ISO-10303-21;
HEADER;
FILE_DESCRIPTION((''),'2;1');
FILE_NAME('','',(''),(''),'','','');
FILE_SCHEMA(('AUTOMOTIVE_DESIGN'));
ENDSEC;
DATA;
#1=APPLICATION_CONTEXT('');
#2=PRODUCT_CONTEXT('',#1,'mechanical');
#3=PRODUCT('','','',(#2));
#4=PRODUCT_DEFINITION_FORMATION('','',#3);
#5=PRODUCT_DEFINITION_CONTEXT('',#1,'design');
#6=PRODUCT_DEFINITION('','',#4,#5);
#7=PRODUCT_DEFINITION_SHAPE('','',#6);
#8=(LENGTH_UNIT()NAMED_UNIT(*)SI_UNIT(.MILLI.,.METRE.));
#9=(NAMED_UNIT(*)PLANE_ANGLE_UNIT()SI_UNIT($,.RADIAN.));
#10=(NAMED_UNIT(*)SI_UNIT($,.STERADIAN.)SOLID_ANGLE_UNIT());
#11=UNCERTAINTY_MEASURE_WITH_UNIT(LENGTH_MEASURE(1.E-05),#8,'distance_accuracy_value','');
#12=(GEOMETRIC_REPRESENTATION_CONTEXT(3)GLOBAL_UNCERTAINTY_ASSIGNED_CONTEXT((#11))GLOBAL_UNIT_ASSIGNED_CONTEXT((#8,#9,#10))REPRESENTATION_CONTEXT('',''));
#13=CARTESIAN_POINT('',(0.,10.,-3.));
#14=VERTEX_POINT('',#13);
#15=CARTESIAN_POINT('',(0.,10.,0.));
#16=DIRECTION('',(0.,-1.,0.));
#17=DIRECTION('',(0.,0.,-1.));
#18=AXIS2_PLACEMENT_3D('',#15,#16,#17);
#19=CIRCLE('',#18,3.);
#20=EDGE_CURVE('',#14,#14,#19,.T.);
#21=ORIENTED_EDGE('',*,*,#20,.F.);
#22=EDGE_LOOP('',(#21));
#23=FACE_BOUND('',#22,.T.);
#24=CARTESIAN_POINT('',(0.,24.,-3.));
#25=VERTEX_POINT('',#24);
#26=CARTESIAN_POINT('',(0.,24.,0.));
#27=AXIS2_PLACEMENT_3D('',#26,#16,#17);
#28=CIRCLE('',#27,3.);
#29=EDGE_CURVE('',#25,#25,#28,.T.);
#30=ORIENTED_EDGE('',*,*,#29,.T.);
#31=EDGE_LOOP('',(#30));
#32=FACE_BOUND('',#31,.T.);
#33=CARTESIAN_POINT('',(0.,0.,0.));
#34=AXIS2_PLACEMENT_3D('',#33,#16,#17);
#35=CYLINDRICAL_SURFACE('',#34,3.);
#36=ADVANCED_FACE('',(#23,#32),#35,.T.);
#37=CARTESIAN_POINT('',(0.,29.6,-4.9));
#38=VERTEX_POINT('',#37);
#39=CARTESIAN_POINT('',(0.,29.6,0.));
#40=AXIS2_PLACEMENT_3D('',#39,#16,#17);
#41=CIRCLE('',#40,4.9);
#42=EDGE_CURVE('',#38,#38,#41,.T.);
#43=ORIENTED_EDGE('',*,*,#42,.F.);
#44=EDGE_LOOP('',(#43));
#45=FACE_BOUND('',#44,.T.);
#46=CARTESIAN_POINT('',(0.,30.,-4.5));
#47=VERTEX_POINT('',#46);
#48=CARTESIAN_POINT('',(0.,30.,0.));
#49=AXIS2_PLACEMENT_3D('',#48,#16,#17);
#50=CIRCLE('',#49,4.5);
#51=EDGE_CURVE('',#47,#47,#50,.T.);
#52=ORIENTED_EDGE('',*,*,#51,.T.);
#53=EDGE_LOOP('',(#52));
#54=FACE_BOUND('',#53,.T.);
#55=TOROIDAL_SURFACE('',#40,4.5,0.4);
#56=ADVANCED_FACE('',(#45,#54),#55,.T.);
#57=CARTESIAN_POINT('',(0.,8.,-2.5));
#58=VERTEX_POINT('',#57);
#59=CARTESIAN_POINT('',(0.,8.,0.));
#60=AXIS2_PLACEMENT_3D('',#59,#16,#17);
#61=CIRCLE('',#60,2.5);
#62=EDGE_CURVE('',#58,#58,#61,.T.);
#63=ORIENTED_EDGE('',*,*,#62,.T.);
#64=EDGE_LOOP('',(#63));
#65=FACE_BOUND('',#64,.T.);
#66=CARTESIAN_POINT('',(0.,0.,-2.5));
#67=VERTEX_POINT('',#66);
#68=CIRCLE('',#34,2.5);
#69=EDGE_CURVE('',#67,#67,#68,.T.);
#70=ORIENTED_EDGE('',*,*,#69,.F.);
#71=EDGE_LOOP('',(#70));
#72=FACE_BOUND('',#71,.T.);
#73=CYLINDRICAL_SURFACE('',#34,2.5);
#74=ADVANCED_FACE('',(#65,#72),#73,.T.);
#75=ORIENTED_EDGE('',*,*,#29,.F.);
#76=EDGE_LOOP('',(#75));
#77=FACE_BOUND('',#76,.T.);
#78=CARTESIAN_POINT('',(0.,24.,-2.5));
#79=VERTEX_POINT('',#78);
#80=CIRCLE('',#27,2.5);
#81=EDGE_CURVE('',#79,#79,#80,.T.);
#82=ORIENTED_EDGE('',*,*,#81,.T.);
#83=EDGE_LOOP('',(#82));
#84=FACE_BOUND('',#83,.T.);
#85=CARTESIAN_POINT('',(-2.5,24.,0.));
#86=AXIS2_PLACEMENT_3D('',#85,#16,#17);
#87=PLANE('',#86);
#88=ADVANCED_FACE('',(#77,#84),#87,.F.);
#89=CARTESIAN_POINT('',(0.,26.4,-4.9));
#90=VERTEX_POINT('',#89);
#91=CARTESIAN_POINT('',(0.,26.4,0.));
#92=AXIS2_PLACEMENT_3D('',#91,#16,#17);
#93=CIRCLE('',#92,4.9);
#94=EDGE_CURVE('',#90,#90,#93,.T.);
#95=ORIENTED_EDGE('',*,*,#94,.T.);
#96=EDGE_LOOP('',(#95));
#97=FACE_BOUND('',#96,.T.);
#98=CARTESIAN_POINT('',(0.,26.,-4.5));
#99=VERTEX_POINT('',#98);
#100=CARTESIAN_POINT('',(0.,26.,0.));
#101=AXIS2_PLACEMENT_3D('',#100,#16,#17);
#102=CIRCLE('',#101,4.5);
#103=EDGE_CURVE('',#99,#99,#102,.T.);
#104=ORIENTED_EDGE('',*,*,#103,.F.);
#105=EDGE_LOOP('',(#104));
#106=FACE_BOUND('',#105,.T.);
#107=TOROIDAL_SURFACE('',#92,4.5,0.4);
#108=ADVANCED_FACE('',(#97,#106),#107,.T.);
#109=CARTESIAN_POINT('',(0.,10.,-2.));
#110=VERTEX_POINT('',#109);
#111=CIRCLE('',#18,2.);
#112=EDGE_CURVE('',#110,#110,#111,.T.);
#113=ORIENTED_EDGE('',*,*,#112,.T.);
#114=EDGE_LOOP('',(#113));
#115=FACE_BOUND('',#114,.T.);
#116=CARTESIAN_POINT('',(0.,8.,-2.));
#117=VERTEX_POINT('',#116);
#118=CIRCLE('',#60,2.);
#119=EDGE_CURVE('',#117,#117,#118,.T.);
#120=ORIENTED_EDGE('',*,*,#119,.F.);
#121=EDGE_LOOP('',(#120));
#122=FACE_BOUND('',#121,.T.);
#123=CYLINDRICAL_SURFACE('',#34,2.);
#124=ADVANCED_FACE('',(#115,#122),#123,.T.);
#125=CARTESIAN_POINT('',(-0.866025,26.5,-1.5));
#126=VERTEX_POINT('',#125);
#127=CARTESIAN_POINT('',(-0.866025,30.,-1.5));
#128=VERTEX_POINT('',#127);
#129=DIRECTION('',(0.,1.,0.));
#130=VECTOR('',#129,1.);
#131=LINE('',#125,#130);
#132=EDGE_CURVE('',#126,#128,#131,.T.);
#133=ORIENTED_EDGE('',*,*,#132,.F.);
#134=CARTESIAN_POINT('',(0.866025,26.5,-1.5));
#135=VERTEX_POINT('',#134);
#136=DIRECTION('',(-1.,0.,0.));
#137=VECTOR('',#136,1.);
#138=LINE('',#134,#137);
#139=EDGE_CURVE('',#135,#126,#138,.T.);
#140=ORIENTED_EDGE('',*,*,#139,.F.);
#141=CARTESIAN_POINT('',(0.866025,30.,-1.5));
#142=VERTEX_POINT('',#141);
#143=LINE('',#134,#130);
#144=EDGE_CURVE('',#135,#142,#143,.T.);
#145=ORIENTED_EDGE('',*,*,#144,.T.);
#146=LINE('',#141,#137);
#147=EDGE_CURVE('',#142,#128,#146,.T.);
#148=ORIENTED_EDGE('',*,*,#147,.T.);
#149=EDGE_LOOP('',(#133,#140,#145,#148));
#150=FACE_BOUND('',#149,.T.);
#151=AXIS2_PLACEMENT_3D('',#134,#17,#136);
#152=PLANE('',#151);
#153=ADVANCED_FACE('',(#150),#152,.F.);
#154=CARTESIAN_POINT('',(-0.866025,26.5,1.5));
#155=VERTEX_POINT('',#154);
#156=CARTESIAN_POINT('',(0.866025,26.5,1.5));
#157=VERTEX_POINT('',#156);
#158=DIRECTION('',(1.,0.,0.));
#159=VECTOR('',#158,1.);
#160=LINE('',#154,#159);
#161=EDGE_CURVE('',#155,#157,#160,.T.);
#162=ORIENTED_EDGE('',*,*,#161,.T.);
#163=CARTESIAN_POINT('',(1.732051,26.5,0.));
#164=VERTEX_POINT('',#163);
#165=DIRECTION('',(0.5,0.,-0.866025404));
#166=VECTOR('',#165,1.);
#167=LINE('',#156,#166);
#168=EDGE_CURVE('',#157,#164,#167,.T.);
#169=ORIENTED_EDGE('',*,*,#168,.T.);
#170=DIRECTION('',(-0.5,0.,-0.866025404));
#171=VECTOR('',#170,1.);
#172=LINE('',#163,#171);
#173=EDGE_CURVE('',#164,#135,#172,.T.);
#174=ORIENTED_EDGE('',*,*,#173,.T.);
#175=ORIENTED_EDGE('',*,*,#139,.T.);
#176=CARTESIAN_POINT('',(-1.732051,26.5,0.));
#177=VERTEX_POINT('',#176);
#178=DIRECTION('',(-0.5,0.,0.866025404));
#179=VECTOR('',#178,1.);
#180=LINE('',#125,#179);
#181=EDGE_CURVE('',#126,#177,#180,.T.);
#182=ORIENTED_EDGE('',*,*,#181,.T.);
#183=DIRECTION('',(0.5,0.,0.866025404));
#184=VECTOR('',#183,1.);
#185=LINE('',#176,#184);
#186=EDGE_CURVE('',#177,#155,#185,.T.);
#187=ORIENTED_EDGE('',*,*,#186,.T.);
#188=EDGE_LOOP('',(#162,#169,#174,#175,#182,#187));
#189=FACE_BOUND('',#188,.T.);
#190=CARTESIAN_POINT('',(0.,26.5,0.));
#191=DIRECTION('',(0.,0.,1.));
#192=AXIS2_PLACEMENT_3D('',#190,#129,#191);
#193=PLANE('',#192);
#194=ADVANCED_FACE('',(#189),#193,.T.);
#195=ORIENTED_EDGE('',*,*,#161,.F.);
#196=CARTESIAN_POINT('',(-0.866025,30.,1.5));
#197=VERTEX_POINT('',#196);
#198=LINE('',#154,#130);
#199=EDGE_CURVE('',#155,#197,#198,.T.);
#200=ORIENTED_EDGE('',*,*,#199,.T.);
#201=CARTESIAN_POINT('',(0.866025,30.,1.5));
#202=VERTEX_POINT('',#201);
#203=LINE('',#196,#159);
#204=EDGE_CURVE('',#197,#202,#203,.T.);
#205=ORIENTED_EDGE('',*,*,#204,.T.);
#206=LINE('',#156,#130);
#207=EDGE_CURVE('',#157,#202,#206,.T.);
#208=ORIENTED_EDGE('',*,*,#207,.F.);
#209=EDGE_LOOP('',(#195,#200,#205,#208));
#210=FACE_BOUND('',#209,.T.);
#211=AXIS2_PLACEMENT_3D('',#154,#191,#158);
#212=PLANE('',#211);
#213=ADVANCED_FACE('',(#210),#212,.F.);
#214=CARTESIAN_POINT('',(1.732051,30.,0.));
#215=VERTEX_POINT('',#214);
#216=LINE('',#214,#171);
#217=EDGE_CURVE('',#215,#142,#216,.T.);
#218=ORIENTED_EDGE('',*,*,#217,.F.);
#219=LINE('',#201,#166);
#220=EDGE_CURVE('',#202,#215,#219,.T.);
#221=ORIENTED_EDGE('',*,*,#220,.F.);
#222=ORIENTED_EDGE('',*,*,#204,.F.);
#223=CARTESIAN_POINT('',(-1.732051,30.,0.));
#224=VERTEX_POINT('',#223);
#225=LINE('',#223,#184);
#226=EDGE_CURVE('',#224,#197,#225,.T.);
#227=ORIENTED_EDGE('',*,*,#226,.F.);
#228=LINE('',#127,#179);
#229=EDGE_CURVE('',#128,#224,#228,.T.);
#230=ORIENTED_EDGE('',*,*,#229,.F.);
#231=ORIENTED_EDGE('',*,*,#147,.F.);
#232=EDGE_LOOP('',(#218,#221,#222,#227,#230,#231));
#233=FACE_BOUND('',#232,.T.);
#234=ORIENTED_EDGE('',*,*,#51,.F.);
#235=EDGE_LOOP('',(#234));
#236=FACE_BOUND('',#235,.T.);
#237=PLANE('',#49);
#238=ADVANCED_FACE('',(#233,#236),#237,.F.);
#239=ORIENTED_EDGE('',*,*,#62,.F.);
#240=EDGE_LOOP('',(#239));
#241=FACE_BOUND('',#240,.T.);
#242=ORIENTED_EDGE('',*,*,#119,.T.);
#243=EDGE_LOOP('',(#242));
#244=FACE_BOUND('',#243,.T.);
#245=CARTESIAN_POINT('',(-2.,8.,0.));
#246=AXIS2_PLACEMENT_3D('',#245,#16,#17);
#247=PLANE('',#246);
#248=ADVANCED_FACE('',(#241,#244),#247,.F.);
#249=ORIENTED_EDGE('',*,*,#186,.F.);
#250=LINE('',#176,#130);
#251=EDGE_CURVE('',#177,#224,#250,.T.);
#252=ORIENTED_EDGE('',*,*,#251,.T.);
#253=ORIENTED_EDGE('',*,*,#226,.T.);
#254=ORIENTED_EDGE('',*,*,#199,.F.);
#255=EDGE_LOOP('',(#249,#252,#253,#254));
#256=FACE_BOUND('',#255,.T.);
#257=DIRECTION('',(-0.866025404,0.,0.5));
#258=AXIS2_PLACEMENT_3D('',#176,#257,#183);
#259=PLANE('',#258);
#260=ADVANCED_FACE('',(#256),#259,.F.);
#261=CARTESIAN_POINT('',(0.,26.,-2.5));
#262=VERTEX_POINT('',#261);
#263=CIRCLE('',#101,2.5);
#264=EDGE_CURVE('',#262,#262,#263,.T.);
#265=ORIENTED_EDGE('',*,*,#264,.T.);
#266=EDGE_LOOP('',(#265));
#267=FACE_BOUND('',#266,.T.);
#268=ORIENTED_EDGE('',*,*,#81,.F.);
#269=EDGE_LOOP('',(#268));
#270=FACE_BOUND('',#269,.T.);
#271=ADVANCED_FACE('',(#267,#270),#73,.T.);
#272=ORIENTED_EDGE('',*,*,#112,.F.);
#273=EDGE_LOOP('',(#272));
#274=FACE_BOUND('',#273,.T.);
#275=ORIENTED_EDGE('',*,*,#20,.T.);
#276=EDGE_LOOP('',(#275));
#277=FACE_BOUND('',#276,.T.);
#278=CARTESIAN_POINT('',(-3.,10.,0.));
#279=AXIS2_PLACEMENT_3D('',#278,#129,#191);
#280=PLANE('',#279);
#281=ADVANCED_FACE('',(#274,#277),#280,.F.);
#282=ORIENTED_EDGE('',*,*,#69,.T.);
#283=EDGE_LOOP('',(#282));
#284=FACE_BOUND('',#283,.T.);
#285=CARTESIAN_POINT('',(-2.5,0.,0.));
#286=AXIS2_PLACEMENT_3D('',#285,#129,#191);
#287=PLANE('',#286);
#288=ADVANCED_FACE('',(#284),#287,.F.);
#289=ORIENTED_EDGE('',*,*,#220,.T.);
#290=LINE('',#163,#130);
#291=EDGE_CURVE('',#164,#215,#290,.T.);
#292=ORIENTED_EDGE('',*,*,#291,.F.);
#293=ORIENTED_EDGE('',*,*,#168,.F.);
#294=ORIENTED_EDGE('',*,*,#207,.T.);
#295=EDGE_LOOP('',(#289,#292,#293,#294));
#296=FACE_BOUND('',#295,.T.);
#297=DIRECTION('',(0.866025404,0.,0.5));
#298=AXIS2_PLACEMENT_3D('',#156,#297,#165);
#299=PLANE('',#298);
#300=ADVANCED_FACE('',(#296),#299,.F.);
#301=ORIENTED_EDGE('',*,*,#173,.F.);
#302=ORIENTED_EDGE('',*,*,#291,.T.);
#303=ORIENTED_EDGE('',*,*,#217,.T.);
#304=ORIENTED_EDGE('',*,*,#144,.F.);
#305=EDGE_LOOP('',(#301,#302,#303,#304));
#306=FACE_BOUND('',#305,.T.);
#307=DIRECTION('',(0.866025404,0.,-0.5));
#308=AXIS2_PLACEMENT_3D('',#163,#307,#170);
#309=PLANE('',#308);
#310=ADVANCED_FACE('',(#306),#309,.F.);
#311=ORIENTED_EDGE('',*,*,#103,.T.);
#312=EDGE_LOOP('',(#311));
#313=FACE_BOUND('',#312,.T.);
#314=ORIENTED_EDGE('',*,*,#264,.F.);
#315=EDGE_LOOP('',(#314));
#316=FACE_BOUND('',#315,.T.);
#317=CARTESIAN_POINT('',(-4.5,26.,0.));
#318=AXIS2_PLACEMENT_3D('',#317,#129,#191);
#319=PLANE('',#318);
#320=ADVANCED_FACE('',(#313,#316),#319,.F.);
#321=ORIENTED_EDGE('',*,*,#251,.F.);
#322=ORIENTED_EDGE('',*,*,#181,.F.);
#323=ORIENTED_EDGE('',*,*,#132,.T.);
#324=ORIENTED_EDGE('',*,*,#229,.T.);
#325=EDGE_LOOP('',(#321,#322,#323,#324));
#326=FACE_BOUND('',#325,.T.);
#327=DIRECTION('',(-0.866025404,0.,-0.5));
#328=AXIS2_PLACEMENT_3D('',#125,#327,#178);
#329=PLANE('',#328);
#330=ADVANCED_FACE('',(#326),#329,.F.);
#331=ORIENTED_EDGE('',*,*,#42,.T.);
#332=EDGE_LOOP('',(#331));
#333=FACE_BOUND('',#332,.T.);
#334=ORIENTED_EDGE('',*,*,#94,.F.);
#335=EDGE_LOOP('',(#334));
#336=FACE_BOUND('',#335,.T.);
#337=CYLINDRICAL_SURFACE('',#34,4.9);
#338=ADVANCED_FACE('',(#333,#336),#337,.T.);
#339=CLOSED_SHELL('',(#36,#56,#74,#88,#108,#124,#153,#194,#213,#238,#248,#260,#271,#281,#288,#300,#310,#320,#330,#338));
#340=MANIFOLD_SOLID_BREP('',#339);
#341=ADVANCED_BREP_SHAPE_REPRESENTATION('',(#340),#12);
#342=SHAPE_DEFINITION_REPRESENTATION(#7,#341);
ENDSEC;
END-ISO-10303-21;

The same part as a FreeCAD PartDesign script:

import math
import FreeCAD as App
import Part
import Sketcher
Q = App.Units.Quantity

doc = App.newDocument("Part")
params = doc.addObject("Spreadsheet::Sheet", "Params")
for row, (alias, value) in enumerate([
    ("sketch1_radius", "0.4 mm"),
    ("sketch1_width", "2 mm"),
    ("sketch1_width2", "1 mm"),
    ("sketch1_height", "14 mm"),
    ("sketch1_height2", "8 mm"),
    ("revolution_angle", "360 deg"),
    ("pocket1_length", "3.5 mm"),
], start=1):
    params.set(f"A{row}", alias)
    params.set(f"B{row}", "=" + value)
    params.setAlias(f"B{row}", alias)

body = doc.addObject("PartDesign::Body", "Body")

# Sketch on XY plane
sketch1 = body.newObject("Sketcher::SketchObject", "Sketch")
sketch1.AttachmentSupport = (doc.getObject("XY_Plane"), [""])
sketch1.MapMode = "FlatFace"
sketch1.addGeometry(Part.LineSegment(App.Vector(0, 30, 0), App.Vector(-4.5, 30, 0)), False)
sketch1.addGeometry(Part.ArcOfCircle(Part.Circle(App.Vector(-4.5, 29.6, 0), App.Vector(0, 0, 1), 0.4), math.radians(90), math.radians(180)), False)
sketch1.addGeometry(Part.LineSegment(App.Vector(-4.9, 29.6, 0), App.Vector(-4.9, 26.4, 0)), False)
sketch1.addGeometry(Part.ArcOfCircle(Part.Circle(App.Vector(-4.5, 26.4, 0), App.Vector(0, 0, 1), 0.4), math.radians(-180), math.radians(-90)), False)
sketch1.addGeometry(Part.LineSegment(App.Vector(-4.5, 26, 0), App.Vector(-2.5, 26, 0)), False)
sketch1.addGeometry(Part.LineSegment(App.Vector(-2.5, 26, 0), App.Vector(-2.5, 24, 0)), False)
sketch1.addGeometry(Part.LineSegment(App.Vector(-2.5, 24, 0), App.Vector(-3, 24, 0)), False)
sketch1.addGeometry(Part.LineSegment(App.Vector(-3, 24, 0), App.Vector(-3, 10, 0)), False)
sketch1.addGeometry(Part.LineSegment(App.Vector(-3, 10, 0), App.Vector(-2, 10, 0)), False)
sketch1.addGeometry(Part.LineSegment(App.Vector(-2, 10, 0), App.Vector(-2, 8, 0)), False)
sketch1.addGeometry(Part.LineSegment(App.Vector(-2, 8, 0), App.Vector(-2.5, 8, 0)), False)
sketch1.addGeometry(Part.LineSegment(App.Vector(-2.5, 8, 0), App.Vector(-2.5, 0, 0)), False)
sketch1.addGeometry(Part.LineSegment(App.Vector(-2.5, 0, 0), App.Vector(0, 0, 0)), False)
sketch1.addGeometry(Part.LineSegment(App.Vector(0, 0, 0), App.Vector(0, 30, 0)), False)
sketch1.addConstraint(Sketcher.Constraint("Tangent", 0, 2, 1, 1))
sketch1.addConstraint(Sketcher.Constraint("Tangent", 1, 2, 2, 1))
sketch1.addConstraint(Sketcher.Constraint("Tangent", 2, 2, 3, 1))
sketch1.addConstraint(Sketcher.Constraint("Tangent", 3, 2, 4, 1))
sketch1.addConstraint(Sketcher.Constraint("Coincident", 4, 2, 5, 1))
sketch1.addConstraint(Sketcher.Constraint("Coincident", 5, 2, 6, 1))
sketch1.addConstraint(Sketcher.Constraint("Coincident", 6, 2, 7, 1))
sketch1.addConstraint(Sketcher.Constraint("Coincident", 7, 2, 8, 1))
sketch1.addConstraint(Sketcher.Constraint("Coincident", 8, 2, 9, 1))
sketch1.addConstraint(Sketcher.Constraint("Coincident", 9, 2, 10, 1))
sketch1.addConstraint(Sketcher.Constraint("Coincident", 10, 2, 11, 1))
sketch1.addConstraint(Sketcher.Constraint("Coincident", 11, 2, 12, 1))
sketch1.addConstraint(Sketcher.Constraint("Coincident", 12, 2, 13, 1))
sketch1.addConstraint(Sketcher.Constraint("Coincident", 13, 2, 0, 1))
sketch1.addConstraint(Sketcher.Constraint("Horizontal", 0))
sketch1.addConstraint(Sketcher.Constraint("Vertical", 2))
sketch1.addConstraint(Sketcher.Constraint("Horizontal", 4))
sketch1.addConstraint(Sketcher.Constraint("Vertical", 5))
sketch1.addConstraint(Sketcher.Constraint("Horizontal", 6))
sketch1.addConstraint(Sketcher.Constraint("Vertical", 7))
sketch1.addConstraint(Sketcher.Constraint("Horizontal", 8))
sketch1.addConstraint(Sketcher.Constraint("Vertical", 9))
sketch1.addConstraint(Sketcher.Constraint("Horizontal", 10))
sketch1.addConstraint(Sketcher.Constraint("Vertical", 11))
sketch1.addConstraint(Sketcher.Constraint("Horizontal", 12))
sketch1.addConstraint(Sketcher.Constraint("Vertical", 13))
sketch1.addConstraint(Sketcher.Constraint("Coincident", 12, 2, -1, 1))
sketch1.addConstraint(Sketcher.Constraint("Equal", 1, 3))
sketch1.addConstraint(Sketcher.Constraint("Vertical", 5, 2, 10, 2))
sketch1.addConstraint(Sketcher.Constraint("Equal", 6, 10))
sketch1.addConstraint(Sketcher.Constraint("Equal", 4, 5))
sketch1.addConstraint(Sketcher.Constraint("Equal", 5, 9))
sketch1.addConstraint(Sketcher.Constraint("Radius", 1, 0.4))
sketch1.addConstraint(Sketcher.Constraint("DistanceX", 4, 1, 4, 2, 2.0))
sketch1.addConstraint(Sketcher.Constraint("DistanceX", 8, 1, 8, 2, 1.0))
sketch1.addConstraint(Sketcher.Constraint("DistanceY", 7, 2, 7, 1, 14.0))
sketch1.addConstraint(Sketcher.Constraint("DistanceY", 11, 2, 11, 1, 8.0))
sketch1.addConstraint(Sketcher.Constraint("DistanceY", 13, 1, 13, 2, 30.0))
sketch1.addConstraint(Sketcher.Constraint("DistanceX", 0, 2, 0, 1, 4.5))
sketch1.setExpression("Constraints[32]", "Params.sketch1_radius")
sketch1.setExpression("Constraints[33]", "Params.sketch1_width")
sketch1.setExpression("Constraints[34]", "Params.sketch1_width2")
sketch1.setExpression("Constraints[35]", "Params.sketch1_height")
sketch1.setExpression("Constraints[36]", "Params.sketch1_height2")
revolution = body.newObject("PartDesign::Revolution", "Revolution")
revolution.Profile = sketch1
revolution.ReferenceAxis = (sketch1, ["V_Axis"])
revolution.setExpression("Angle", "Params.revolution_angle")

# Sketch on XZ plane
sketch2 = body.newObject("Sketcher::SketchObject", "Sketch001")
sketch2.AttachmentSupport = (doc.getObject("XZ_Plane"), [""])
sketch2.MapMode = "FlatFace"
sketch2.AttachmentOffset = App.Placement(App.Vector(0, 0, -30), App.Rotation())
sketch2.addGeometry(Part.LineSegment(App.Vector(0.9, -1.5, 0), App.Vector(-0.9, -1.5, 0)), False)
sketch2.addGeometry(Part.LineSegment(App.Vector(-0.9, -1.5, 0), App.Vector(-1.7, 0, 0)), False)
sketch2.addGeometry(Part.LineSegment(App.Vector(-1.7, 0, 0), App.Vector(-0.9, 1.5, 0)), False)
sketch2.addGeometry(Part.LineSegment(App.Vector(-0.9, 1.5, 0), App.Vector(0.9, 1.5, 0)), False)
sketch2.addGeometry(Part.LineSegment(App.Vector(0.9, 1.5, 0), App.Vector(1.7, 0, 0)), False)
sketch2.addGeometry(Part.LineSegment(App.Vector(1.7, 0, 0), App.Vector(0.9, -1.5, 0)), False)
sketch2.addConstraint(Sketcher.Constraint("Coincident", 0, 2, 1, 1))
sketch2.addConstraint(Sketcher.Constraint("Coincident", 1, 2, 2, 1))
sketch2.addConstraint(Sketcher.Constraint("Coincident", 2, 2, 3, 1))
sketch2.addConstraint(Sketcher.Constraint("Coincident", 3, 2, 4, 1))
sketch2.addConstraint(Sketcher.Constraint("Coincident", 4, 2, 5, 1))
sketch2.addConstraint(Sketcher.Constraint("Coincident", 5, 2, 0, 1))
sketch2.addConstraint(Sketcher.Constraint("Horizontal", 0))
sketch2.addConstraint(Sketcher.Constraint("Horizontal", 3))
sketch2.addConstraint(Sketcher.Constraint("Symmetric", 0, 2, 3, 2, -1, 1))
sketch2.addConstraint(Sketcher.Constraint("Symmetric", 1, 2, 4, 2, -1, 1))
sketch2.addConstraint(Sketcher.Constraint("PointOnObject", 1, 2, -1))
sketch2.addConstraint(Sketcher.Constraint("Parallel", 2, 5))
sketch2.addConstraint(Sketcher.Constraint("Vertical", 0, 2, 2, 2))
sketch2.addConstraint(Sketcher.Constraint("Angle", 1, Q("120 deg")))
sketch2.addConstraint(Sketcher.Constraint("DistanceY", 0, 2, 2, 2, 3.0))
sketch2.addConstraint(Sketcher.Constraint("DistanceX", 0, 2, 0, 1, 1.732051))
pocket1 = body.newObject("PartDesign::Pocket", "Pocket")
pocket1.Profile = sketch2
pocket1.setExpression("Length", "Params.pocket1_length")
pocket1.Reversed = True

doc.recompute()
